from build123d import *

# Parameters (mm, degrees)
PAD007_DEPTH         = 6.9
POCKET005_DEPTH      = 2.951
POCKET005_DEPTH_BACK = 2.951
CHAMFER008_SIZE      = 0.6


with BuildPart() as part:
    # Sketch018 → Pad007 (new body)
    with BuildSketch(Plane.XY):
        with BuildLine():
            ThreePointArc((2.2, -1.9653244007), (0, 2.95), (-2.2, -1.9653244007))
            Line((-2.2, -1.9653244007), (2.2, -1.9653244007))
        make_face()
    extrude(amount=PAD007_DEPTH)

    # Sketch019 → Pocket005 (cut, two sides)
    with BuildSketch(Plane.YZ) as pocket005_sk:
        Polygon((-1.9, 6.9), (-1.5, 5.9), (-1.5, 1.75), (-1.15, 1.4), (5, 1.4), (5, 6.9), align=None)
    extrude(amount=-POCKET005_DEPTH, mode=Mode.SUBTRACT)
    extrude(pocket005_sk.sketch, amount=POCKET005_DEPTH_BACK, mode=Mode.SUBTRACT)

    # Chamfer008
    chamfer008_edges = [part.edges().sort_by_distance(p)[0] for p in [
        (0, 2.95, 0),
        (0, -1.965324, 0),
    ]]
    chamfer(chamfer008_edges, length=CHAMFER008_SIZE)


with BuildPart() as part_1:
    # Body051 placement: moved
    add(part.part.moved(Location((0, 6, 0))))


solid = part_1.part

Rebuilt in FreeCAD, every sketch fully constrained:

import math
import FreeCAD as App
import Part
import Sketcher
Q = App.Units.Quantity


def edges_at(feature, points):
    """Names of the edges that pass closest to the given points."""
    edges = feature.Shape.Edges
    near = lambda p: min(range(len(edges)), key=lambda i: edges[i].distToShape(Part.Vertex(*p))[0])
    return sorted({f"Edge{near(p) + 1}" for p in points})

doc = App.newDocument("Part")
body = doc.addObject("PartDesign::Body", "Body")

# Sketch on XY plane
sketch1 = body.newObject("Sketcher::SketchObject", "Sketch")
sketch1.AttachmentSupport = (doc.getObject("XY_Plane"), [""])
sketch1.MapMode = "FlatFace"
sketch1.addGeometry(Part.ArcOfCircle(Part.Circle(App.Vector(0, 0, 0), App.Vector(0, 0, 1), 3), math.radians(-42), math.radians(222)), False)
sketch1.addGeometry(Part.LineSegment(App.Vector(-2.2, -2, 0), App.Vector(2.2, -2, 0)), False)
sketch1.addConstraint(Sketcher.Constraint("Coincident", 0, 1, 1, 2))
sketch1.addConstraint(Sketcher.Constraint("Coincident", 1, 1, 0, 2))
sketch1.addConstraint(Sketcher.Constraint("Horizontal", 1))
sketch1.addConstraint(Sketcher.Constraint("Coincident", 0, 3, -1, 1))
sketch1.addConstraint(Sketcher.Constraint("Radius", 0, Q("2.95 mm")))
sketch1.addConstraint(Sketcher.Constraint("DistanceX", 1, 1, 1, 2, Q("4.4 mm")))
pad1 = body.newObject("PartDesign::Pad", "Pad")
pad1.Profile = sketch1
pad1.Length = 6.9

# Sketch on YZ plane
sketch2 = body.newObject("Sketcher::SketchObject", "Sketch001")
sketch2.AttachmentSupport = (doc.getObject("YZ_Plane"), [""])
sketch2.MapMode = "FlatFace"
sketch2.addGeometry(Part.LineSegment(App.Vector(-1.9, 6.9, 0), App.Vector(-1.5, 5.9, 0)), False)
sketch2.addGeometry(Part.LineSegment(App.Vector(-1.5, 5.9, 0), App.Vector(-1.5, 1.75, 0)), False)
sketch2.addGeometry(Part.LineSegment(App.Vector(-1.5, 1.75, 0), App.Vector(-1.15, 1.4, 0)), False)
sketch2.addGeometry(Part.LineSegment(App.Vector(-1.15, 1.4, 0), App.Vector(5, 1.4, 0)), False)
sketch2.addGeometry(Part.LineSegment(App.Vector(5, 1.4, 0), App.Vector(5, 6.9, 0)), False)
sketch2.addGeometry(Part.LineSegment(App.Vector(5, 6.9, 0), App.Vector(-1.9, 6.9, 0)), False)
sketch2.addConstraint(Sketcher.Constraint("Coincident", 0, 2, 1, 1))
sketch2.addConstraint(Sketcher.Constraint("Coincident", 1, 2, 2, 1))
sketch2.addConstraint(Sketcher.Constraint("Coincident", 2, 2, 3, 1))
sketch2.addConstraint(Sketcher.Constraint("Coincident", 3, 2, 4, 1))
sketch2.addConstraint(Sketcher.Constraint("Coincident", 4, 2, 5, 1))
sketch2.addConstraint(Sketcher.Constraint("Coincident", 5, 2, 0, 1))
sketch2.addConstraint(Sketcher.Constraint("Vertical", 1))
sketch2.addConstraint(Sketcher.Constraint("Horizontal", 3))
sketch2.addConstraint(Sketcher.Constraint("Vertical", 4))
sketch2.addConstraint(Sketcher.Constraint("Horizontal", 5))
sketch2.addConstraint(Sketcher.Constraint("Angle", 2, Q("-45 deg")))
sketch2.addConstraint(Sketcher.Constraint("DistanceX", 5, 2, 5, 1, Q("6.9 mm")))
sketch2.addConstraint(Sketcher.Constraint("DistanceY", 4, 1, 4, 2, Q("5.5 mm")))
sketch2.addConstraint(Sketcher.Constraint("DistanceX", -1, 1, 3, 2, Q("5 mm")))
sketch2.addConstraint(Sketcher.Constraint("DistanceY", 0, 2, 4, 2, Q("1 mm")))
sketch2.addConstraint(Sketcher.Constraint("DistanceX", 3, 1, 3, 2, Q("6.15 mm")))
sketch2.addConstraint(Sketcher.Constraint("DistanceY", 1, 2, 1, 1, Q("4.15 mm")))
sketch2.addConstraint(Sketcher.Constraint("DistanceY", -1, 1, 0, 2, Q("5.9 mm")))
pocket1 = body.newObject("PartDesign::Pocket", "Pocket")
pocket1.Profile = sketch2
pocket1.Type = "ThroughAll"
pocket1.Midplane = True
doc.recompute()

chamfer = body.newObject("PartDesign::Chamfer", "Chamfer")
chamfer.Base = (pocket1, edges_at(pocket1, [(0, 2.95, 0), (0, -1.965, 0)]))
chamfer.Size = 0.6
body2 = doc.addObject("PartDesign::Body", "Body001")
doc.recompute()

body.Placement = App.Placement(App.Vector(0, 6, 0), App.Rotation(App.Vector(0, 0, 1), 0))
boolean = body2.newObject("PartDesign::Boolean", "Boolean")
boolean.Type = "Fuse"
boolean.addObjects([body])

doc.recompute()
